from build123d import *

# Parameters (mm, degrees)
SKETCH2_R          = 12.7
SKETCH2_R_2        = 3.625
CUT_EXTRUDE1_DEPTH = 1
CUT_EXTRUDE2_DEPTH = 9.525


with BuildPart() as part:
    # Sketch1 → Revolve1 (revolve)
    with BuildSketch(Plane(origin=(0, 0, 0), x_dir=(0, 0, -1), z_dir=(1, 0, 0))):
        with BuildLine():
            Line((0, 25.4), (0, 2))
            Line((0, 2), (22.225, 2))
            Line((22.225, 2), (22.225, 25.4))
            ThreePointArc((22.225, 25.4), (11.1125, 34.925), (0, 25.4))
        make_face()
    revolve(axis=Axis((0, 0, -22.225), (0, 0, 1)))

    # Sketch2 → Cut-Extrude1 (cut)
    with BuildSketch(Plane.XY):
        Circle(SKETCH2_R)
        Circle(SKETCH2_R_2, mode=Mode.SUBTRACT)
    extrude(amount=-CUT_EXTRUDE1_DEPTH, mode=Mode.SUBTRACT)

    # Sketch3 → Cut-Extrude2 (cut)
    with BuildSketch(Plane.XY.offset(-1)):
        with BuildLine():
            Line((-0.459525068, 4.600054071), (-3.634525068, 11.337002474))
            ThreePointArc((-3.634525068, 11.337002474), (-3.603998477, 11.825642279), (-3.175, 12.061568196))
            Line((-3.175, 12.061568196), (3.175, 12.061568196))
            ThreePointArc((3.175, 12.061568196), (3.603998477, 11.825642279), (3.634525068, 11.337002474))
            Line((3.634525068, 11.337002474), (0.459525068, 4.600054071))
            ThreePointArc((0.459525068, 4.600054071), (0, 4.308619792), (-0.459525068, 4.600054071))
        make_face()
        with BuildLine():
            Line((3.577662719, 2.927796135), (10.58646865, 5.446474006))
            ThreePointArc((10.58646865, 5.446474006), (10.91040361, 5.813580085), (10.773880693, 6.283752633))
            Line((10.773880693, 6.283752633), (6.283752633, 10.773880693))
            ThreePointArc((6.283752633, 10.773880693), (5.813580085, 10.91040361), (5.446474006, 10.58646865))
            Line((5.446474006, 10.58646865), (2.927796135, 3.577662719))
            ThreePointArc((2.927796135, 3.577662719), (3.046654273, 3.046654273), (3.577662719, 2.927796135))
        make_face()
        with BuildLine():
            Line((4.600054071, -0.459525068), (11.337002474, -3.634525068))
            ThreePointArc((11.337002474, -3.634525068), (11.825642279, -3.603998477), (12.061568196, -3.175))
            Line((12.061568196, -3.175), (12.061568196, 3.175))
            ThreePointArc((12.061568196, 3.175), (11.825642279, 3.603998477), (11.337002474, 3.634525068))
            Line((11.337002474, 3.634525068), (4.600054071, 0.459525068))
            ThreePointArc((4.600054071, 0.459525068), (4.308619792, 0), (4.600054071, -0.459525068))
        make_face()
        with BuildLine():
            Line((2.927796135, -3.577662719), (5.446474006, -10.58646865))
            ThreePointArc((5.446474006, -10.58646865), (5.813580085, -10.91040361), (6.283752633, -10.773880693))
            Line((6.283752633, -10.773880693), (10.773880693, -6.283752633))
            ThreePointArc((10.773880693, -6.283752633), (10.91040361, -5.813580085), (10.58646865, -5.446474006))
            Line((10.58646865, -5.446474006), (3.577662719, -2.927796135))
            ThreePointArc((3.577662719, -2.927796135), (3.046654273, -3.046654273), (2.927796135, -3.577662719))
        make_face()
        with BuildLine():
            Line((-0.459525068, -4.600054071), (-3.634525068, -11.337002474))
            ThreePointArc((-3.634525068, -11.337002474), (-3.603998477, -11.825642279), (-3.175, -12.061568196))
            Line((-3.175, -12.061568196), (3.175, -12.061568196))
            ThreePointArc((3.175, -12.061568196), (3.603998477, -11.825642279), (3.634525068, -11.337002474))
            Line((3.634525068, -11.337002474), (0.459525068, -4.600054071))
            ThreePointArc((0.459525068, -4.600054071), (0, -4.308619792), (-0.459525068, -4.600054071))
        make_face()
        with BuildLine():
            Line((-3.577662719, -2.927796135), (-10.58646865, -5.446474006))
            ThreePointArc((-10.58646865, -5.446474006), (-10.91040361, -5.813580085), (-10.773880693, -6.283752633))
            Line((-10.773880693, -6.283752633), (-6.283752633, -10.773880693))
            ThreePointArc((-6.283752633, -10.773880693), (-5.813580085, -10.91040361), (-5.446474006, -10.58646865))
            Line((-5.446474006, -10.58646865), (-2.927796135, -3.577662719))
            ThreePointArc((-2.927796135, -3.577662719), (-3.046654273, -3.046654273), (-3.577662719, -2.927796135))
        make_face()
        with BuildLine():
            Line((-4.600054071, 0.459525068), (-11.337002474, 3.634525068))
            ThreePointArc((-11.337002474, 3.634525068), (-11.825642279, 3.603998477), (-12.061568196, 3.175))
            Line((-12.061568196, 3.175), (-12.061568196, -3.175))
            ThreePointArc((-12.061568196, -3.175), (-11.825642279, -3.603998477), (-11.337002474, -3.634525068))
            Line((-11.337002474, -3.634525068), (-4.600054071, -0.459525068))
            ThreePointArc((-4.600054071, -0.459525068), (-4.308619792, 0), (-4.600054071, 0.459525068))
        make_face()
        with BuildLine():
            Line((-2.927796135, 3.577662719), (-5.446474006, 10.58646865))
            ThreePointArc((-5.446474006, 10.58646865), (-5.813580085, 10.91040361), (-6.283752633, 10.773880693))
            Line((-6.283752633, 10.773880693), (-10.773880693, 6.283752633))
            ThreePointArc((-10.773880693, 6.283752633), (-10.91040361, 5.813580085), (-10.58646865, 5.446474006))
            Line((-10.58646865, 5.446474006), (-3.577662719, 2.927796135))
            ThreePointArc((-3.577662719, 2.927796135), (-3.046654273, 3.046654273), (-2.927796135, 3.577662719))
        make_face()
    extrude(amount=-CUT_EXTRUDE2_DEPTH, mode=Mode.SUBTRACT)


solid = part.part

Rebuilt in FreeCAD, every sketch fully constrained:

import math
import FreeCAD as App
import Part
import Sketcher
Q = App.Units.Quantity

doc = App.newDocument("Part")
body = doc.addObject("PartDesign::Body", "Body")

sketch1 = body.newObject("Sketcher::SketchObject", "Sketch")
sketch1.AttachmentSupport = (doc.getObject("YZ_Plane"), [""])
sketch1.MapMode = "FlatFace"
sketch1.addGeometry([
    Part.LineSegment(App.Vector(25, 0, 0), App.Vector(2, 0, 0)),
    Part.LineSegment(App.Vector(2, 0, 0), App.Vector(2, -22, 0)),
    Part.LineSegment(App.Vector(2, -22, 0), App.Vector(25, -22, 0)),
    Part.ArcOfCircle(Part.Circle(App.Vector(24, -11, 0), App.Vector(0, 0, 1), 11), math.radians(-81), math.radians(81)),
], False)
sketch1.addConstraint([
    Sketcher.Constraint("Coincident", 0, 2, 1, 1),
    Sketcher.Constraint("Coincident", 1, 2, 2, 1),
    Sketcher.Constraint("Coincident", 2, 2, 3, 1),
    Sketcher.Constraint("Coincident", 3, 2, 0, 1),
    Sketcher.Constraint("Horizontal", 0),
    Sketcher.Constraint("Vertical", 1),
    Sketcher.Constraint("Horizontal", 2),
    Sketcher.Constraint("PointOnObject", 0, 2, -1),
    Sketcher.Constraint("Vertical", 2, 2, 3, 2),
    Sketcher.Constraint("DistanceX", -1, 1, 2, 2, Q("1 in")),
    Sketcher.Constraint("DistanceY", 1, 2, 1, 1, Q("0.875 in")),
    Sketcher.Constraint("Radius", 3, 11.244792),
    Sketcher.Constraint("DistanceX", 0, 2, 0, 1, 23.4),
])
revolution = body.newObject("PartDesign::Revolution", "Revolution")
revolution.Profile = sketch1
revolution.ReferenceAxis = (sketch1, ["V_Axis"])
revolution.Angle = 360

sketch2 = body.newObject("Sketcher::SketchObject", "Sketch001")
sketch2.AttachmentSupport = (doc.getObject("XY_Plane"), [""])
sketch2.MapMode = "FlatFace"
sketch2.addGeometry([
    Part.Circle(App.Vector(0, 0, 0), App.Vector(0, 0, 1), 12.7),
    Part.Circle(App.Vector(0, 0, 0), App.Vector(0, 0, 1), 3.6),
], False)
sketch2.addConstraint([
    Sketcher.Constraint("Coincident", 0, 3, -1, 1),
    Sketcher.Constraint("Coincident", 1, 3, -1, 1),
    Sketcher.Constraint("Diameter", 0, Q("1 in")),
    Sketcher.Constraint("Diameter", 1, 7.25),
])
pocket1 = body.newObject("PartDesign::Pocket", "Pocket")
pocket1.Profile = sketch2
pocket1.Length = 1

sketch3 = body.newObject("Sketcher::SketchObject", "Sketch002")
sketch3.AttachmentSupport = (doc.getObject("XY_Plane"), [""])
sketch3.MapMode = "FlatFace"
sketch3.AttachmentOffset = App.Placement(App.Vector(0, 0, -1), App.Rotation())
sketch3.addGeometry([
    Part.LineSegment(App.Vector(-3.6, 11.3, 0), App.Vector(-0.5, 4.6, 0)),
    Part.ArcOfCircle(Part.Circle(App.Vector(0, 4.8, 0), App.Vector(0, 0, 1), 0.5), math.radians(-155), math.radians(-25)),
    Part.LineSegment(App.Vector(0.5, 4.6, 0), App.Vector(3.6, 11.3, 0)),
    Part.ArcOfCircle(Part.Circle(App.Vector(3.2, 11.6, 0), App.Vector(0, 0, 1), 0.5), math.radians(-25), math.radians(90)),
    Part.LineSegment(App.Vector(3.2, 12.1, 0), App.Vector(-3.2, 12.1, 0)),
    Part.ArcOfCircle(Part.Circle(App.Vector(-3.2, 11.6, 0), App.Vector(0, 0, 1), 0.5), math.radians(90), math.radians(205)),
    Part.LineSegment(App.Vector(3.6, 2.9, 0), App.Vector(10.6, 5.4, 0)),
    Part.ArcOfCircle(Part.Circle(App.Vector(10.4, 5.9, 0), App.Vector(0, 0, 1), 0.5), math.radians(-70), math.radians(45)),
    Part.LineSegment(App.Vector(10.8, 6.3, 0), App.Vector(6.3, 10.8, 0)),
    Part.ArcOfCircle(Part.Circle(App.Vector(5.9, 10.4, 0), App.Vector(0, 0, 1), 0.5), math.radians(45), math.radians(160)),
    Part.LineSegment(App.Vector(5.4, 10.6, 0), App.Vector(2.9, 3.6, 0)),
    Part.ArcOfCircle(Part.Circle(App.Vector(3.4, 3.4, 0), App.Vector(0, 0, 1), 0.5), math.radians(160), math.radians(290)),
    Part.LineSegment(App.Vector(4.6, -0.5, 0), App.Vector(11.3, -3.6, 0)),
    Part.ArcOfCircle(Part.Circle(App.Vector(11.6, -3.2, 0), App.Vector(0, 0, 1), 0.5), math.radians(-115), math.radians(0)),
    Part.LineSegment(App.Vector(12.1, -3.2, 0), App.Vector(12.1, 3.2, 0)),
    Part.ArcOfCircle(Part.Circle(App.Vector(11.6, 3.2, 0), App.Vector(0, 0, 1), 0.5), math.radians(0), math.radians(115)),
    Part.LineSegment(App.Vector(11.3, 3.6, 0), App.Vector(4.6, 0.5, 0)),
    Part.ArcOfCircle(Part.Circle(App.Vector(4.8, 0, 0), App.Vector(0, 0, 1), 0.5), math.radians(115), math.radians(245)),
    Part.LineSegment(App.Vector(2.9, -3.6, 0), App.Vector(5.4, -10.6, 0)),
    Part.ArcOfCircle(Part.Circle(App.Vector(5.9, -10.4, 0), App.Vector(0, 0, 1), 0.5), math.radians(-160), math.radians(-45)),
    Part.LineSegment(App.Vector(6.3, -10.8, 0), App.Vector(10.8, -6.3, 0)),
    Part.ArcOfCircle(Part.Circle(App.Vector(10.4, -5.9, 0), App.Vector(0, 0, 1), 0.5), math.radians(-45), math.radians(70)),
    Part.LineSegment(App.Vector(10.6, -5.4, 0), App.Vector(3.6, -2.9, 0)),
    Part.ArcOfCircle(Part.Circle(App.Vector(3.4, -3.4, 0), App.Vector(0, 0, 1), 0.5), math.radians(70), math.radians(200)),
    Part.LineSegment(App.Vector(-0.5, -4.6, 0), App.Vector(-3.6, -11.3, 0)),
    Part.ArcOfCircle(Part.Circle(App.Vector(-3.2, -11.6, 0), App.Vector(0, 0, 1), 0.5), math.radians(155), math.radians(270)),
    Part.LineSegment(App.Vector(-3.2, -12.1, 0), App.Vector(3.2, -12.1, 0)),
    Part.ArcOfCircle(Part.Circle(App.Vector(3.2, -11.6, 0), App.Vector(0, 0, 1), 0.5), math.radians(-90), math.radians(25)),
    Part.LineSegment(App.Vector(3.6, -11.3, 0), App.Vector(0.5, -4.6, 0)),
    Part.ArcOfCircle(Part.Circle(App.Vector(0, -4.8, 0), App.Vector(0, 0, 1), 0.5), math.radians(25), math.radians(155)),
    Part.LineSegment(App.Vector(-3.6, -2.9, 0), App.Vector(-10.6, -5.4, 0)),
    Part.ArcOfCircle(Part.Circle(App.Vector(-10.4, -5.9, 0), App.Vector(0, 0, 1), 0.5), math.radians(110), math.radians(225)),
    Part.LineSegment(App.Vector(-10.8, -6.3, 0), App.Vector(-6.3, -10.8, 0)),
    Part.ArcOfCircle(Part.Circle(App.Vector(-5.9, -10.4, 0), App.Vector(0, 0, 1), 0.5), math.radians(-135), math.radians(-20)),
    Part.LineSegment(App.Vector(-5.4, -10.6, 0), App.Vector(-2.9, -3.6, 0)),
    Part.ArcOfCircle(Part.Circle(App.Vector(-3.4, -3.4, 0), App.Vector(0, 0, 1), 0.5), math.radians(-20), math.radians(110)),
    Part.LineSegment(App.Vector(-4.6, 0.5, 0), App.Vector(-11.3, 3.6, 0)),
    Part.ArcOfCircle(Part.Circle(App.Vector(-11.6, 3.2, 0), App.Vector(0, 0, 1), 0.5), math.radians(65), math.radians(180)),
    Part.LineSegment(App.Vector(-12.1, 3.2, 0), App.Vector(-12.1, -3.2, 0)),
    Part.ArcOfCircle(Part.Circle(App.Vector(-11.6, -3.2, 0), App.Vector(0, 0, 1), 0.5), math.radians(180), math.radians(295)),
    Part.LineSegment(App.Vector(-11.3, -3.6, 0), App.Vector(-4.6, -0.5, 0)),
    Part.ArcOfCircle(Part.Circle(App.Vector(-4.8, 0, 0), App.Vector(0, 0, 1), 0.5), math.radians(-65), math.radians(65)),
    Part.LineSegment(App.Vector(-2.9, 3.6, 0), App.Vector(-5.4, 10.6, 0)),
    Part.ArcOfCircle(Part.Circle(App.Vector(-5.9, 10.4, 0), App.Vector(0, 0, 1), 0.5), math.radians(20), math.radians(135)),
    Part.LineSegment(App.Vector(-6.3, 10.8, 0), App.Vector(-10.8, 6.3, 0)),
    Part.ArcOfCircle(Part.Circle(App.Vector(-10.4, 5.9, 0), App.Vector(0, 0, 1), 0.5), math.radians(135), math.radians(250)),
    Part.LineSegment(App.Vector(-10.6, 5.4, 0), App.Vector(-3.6, 2.9, 0)),
    Part.ArcOfCircle(Part.Circle(App.Vector(-3.4, 3.4, 0), App.Vector(0, 0, 1), 0.5), math.radians(-110), math.radians(20)),
], False)
sketch3.addConstraint([
    Sketcher.Constraint("Tangent", 0, 2, 1, 1),
    Sketcher.Constraint("Tangent", 1, 2, 2, 1),
    Sketcher.Constraint("Tangent", 2, 2, 3, 1),
    Sketcher.Constraint("Tangent", 3, 2, 4, 1),
    Sketcher.Constraint("Tangent", 4, 2, 5, 1),
    Sketcher.Constraint("Tangent", 5, 2, 0, 1),
    Sketcher.Constraint("Tangent", 6, 2, 7, 1),
    Sketcher.Constraint("Tangent", 7, 2, 8, 1),
    Sketcher.Constraint("Tangent", 8, 2, 9, 1),
    Sketcher.Constraint("Tangent", 9, 2, 10, 1),
    Sketcher.Constraint("Tangent", 10, 2, 11, 1),
    Sketcher.Constraint("Tangent", 11, 2, 6, 1),
    Sketcher.Constraint("Tangent", 12, 2, 13, 1),
    Sketcher.Constraint("Tangent", 13, 2, 14, 1),
    Sketcher.Constraint("Tangent", 14, 2, 15, 1),
    Sketcher.Constraint("Tangent", 15, 2, 16, 1),
    Sketcher.Constraint("Tangent", 16, 2, 17, 1),
    Sketcher.Constraint("Tangent", 17, 2, 12, 1),
    Sketcher.Constraint("Tangent", 18, 2, 19, 1),
    Sketcher.Constraint("Tangent", 19, 2, 20, 1),
    Sketcher.Constraint("Tangent", 20, 2, 21, 1),
    Sketcher.Constraint("Tangent", 21, 2, 22, 1),
    Sketcher.Constraint("Tangent", 22, 2, 23, 1),
    Sketcher.Constraint("Tangent", 23, 2, 18, 1),
    Sketcher.Constraint("Tangent", 24, 2, 25, 1),
    Sketcher.Constraint("Tangent", 25, 2, 26, 1),
    Sketcher.Constraint("Tangent", 26, 2, 27, 1),
    Sketcher.Constraint("Tangent", 27, 2, 28, 1),
    Sketcher.Constraint("Tangent", 28, 2, 29, 1),
    Sketcher.Constraint("Tangent", 29, 2, 24, 1),
    Sketcher.Constraint("Tangent", 30, 2, 31, 1),
    Sketcher.Constraint("Tangent", 31, 2, 32, 1),
    Sketcher.Constraint("Tangent", 32, 2, 33, 1),
    Sketcher.Constraint("Tangent", 33, 2, 34, 1),
    Sketcher.Constraint("Tangent", 34, 2, 35, 1),
    Sketcher.Constraint("Tangent", 35, 2, 30, 1),
    Sketcher.Constraint("Tangent", 36, 2, 37, 1),
    Sketcher.Constraint("Tangent", 37, 2, 38, 1),
    Sketcher.Constraint("Tangent", 38, 2, 39, 1),
    Sketcher.Constraint("Tangent", 39, 2, 40, 1),
    Sketcher.Constraint("Tangent", 40, 2, 41, 1),
    Sketcher.Constraint("Tangent", 41, 2, 36, 1),
    Sketcher.Constraint("Tangent", 42, 2, 43, 1),
    Sketcher.Constraint("Tangent", 43, 2, 44, 1),
    Sketcher.Constraint("Tangent", 44, 2, 45, 1),
    Sketcher.Constraint("Tangent", 45, 2, 46, 1),
    Sketcher.Constraint("Tangent", 46, 2, 47, 1),
    Sketcher.Constraint("Tangent", 47, 2, 42, 1),
    Sketcher.Constraint("Horizontal", 4),
    Sketcher.Constraint("Vertical", 14),
    Sketcher.Constraint("Horizontal", 26),
    Sketcher.Constraint("Vertical", 38),
    Sketcher.Constraint("Equal", 1, 3),
    Sketcher.Constraint("Equal", 3, 5),
    Sketcher.Constraint("Equal", 5, 7),
    Sketcher.Constraint("Equal", 7, 9),
    Sketcher.Constraint("Equal", 9, 11),
    Sketcher.Constraint("Equal", 11, 13),
    Sketcher.Constraint("Equal", 13, 15),
    Sketcher.Constraint("Equal", 15, 17),
    Sketcher.Constraint("Equal", 17, 19),
    Sketcher.Constraint("Equal", 19, 21),
    Sketcher.Constraint("Equal", 21, 23),
    Sketcher.Constraint("Equal", 23, 25),
    Sketcher.Constraint("Equal", 25, 27),
    Sketcher.Constraint("Equal", 27, 29),
    Sketcher.Constraint("Equal", 29, 31),
    Sketcher.Constraint("Equal", 31, 33),
    Sketcher.Constraint("Equal", 33, 35),
    Sketcher.Constraint("Equal", 35, 37),
    Sketcher.Constraint("Equal", 37, 39),
    Sketcher.Constraint("Equal", 39, 41),
    Sketcher.Constraint("Equal", 41, 43),
    Sketcher.Constraint("Equal", 43, 45),
    Sketcher.Constraint("Equal", 45, 47),
    Sketcher.Constraint("Symmetric", 3, 3, 25, 3, -1, 1),
    Sketcher.Constraint("Symmetric", 1, 3, 29, 3, -1, 1),
    Sketcher.Constraint("Symmetric", 7, 3, 31, 3, -1, 1),
    Sketcher.Constraint("Symmetric", 9, 3, 33, 3, -1, 1),
    Sketcher.Constraint("Symmetric", 11, 3, 35, 3, -1, 1),
    Sketcher.Constraint("Symmetric", 13, 3, 37, 3, -1, 1),
    Sketcher.Constraint("Symmetric", 17, 3, 41, 3, -1, 1),
    Sketcher.Constraint("Symmetric", 19, 3, 43, 3, -1, 1),
    Sketcher.Constraint("Symmetric", 21, 3, 45, 3, -1, 1),
    Sketcher.Constraint("Symmetric", 23, 3, 47, 3, -1, 1),
    Sketcher.Constraint("Symmetric", 21, 3, 31, 3, -2),
    Sketcher.Constraint("Symmetric", 19, 3, 33, 3, -2),
    Sketcher.Constraint("Symmetric", 23, 3, 35, 3, -2),
    Sketcher.Constraint("Symmetric", 0, 2, 1, 2, -2),
    Sketcher.Constraint("Symmetric", 15, 2, 36, 2, -2),
    Sketcher.Constraint("Perpendicular", 2, 12),
    Sketcher.Constraint("Perpendicular", 6, 18),
    Sketcher.Constraint("Perpendicular", 8, 20),
    Sketcher.Constraint("Perpendicular", 16, 28),
    Sketcher.Constraint("Perpendicular", 28, 40),
    Sketcher.Constraint("Equal", 26, 14),
    Sketcher.Constraint("Equal", 2, 6),
    Sketcher.Constraint("Radius", 1, Q("0.02 in")),
    Sketcher.Constraint("DistanceX", 4, 2, 4, 1, Q("0.25 in")),
    Sketcher.Constraint("Distance", 8, Q("0.25 in")),
    Sketcher.Constraint("DistanceY", -1, 1, 1, 3, 4.81662),
    Sketcher.Constraint("DistanceY", -1, 1, 3, 3, 11.553568),
    Sketcher.Constraint("DistanceX", -1, 1, 7, 3, 10.41467),
    Sketcher.Constraint("DistanceY", -1, 1, 9, 3, 10.41467),
    Sketcher.Constraint("DistanceX", -1, 1, 13, 3, 11.553568),
])
pocket2 = body.newObject("PartDesign::Pocket", "Pocket001")
pocket2.Profile = sketch3
pocket2.Length = Q("0.375 in")

doc.recompute()
